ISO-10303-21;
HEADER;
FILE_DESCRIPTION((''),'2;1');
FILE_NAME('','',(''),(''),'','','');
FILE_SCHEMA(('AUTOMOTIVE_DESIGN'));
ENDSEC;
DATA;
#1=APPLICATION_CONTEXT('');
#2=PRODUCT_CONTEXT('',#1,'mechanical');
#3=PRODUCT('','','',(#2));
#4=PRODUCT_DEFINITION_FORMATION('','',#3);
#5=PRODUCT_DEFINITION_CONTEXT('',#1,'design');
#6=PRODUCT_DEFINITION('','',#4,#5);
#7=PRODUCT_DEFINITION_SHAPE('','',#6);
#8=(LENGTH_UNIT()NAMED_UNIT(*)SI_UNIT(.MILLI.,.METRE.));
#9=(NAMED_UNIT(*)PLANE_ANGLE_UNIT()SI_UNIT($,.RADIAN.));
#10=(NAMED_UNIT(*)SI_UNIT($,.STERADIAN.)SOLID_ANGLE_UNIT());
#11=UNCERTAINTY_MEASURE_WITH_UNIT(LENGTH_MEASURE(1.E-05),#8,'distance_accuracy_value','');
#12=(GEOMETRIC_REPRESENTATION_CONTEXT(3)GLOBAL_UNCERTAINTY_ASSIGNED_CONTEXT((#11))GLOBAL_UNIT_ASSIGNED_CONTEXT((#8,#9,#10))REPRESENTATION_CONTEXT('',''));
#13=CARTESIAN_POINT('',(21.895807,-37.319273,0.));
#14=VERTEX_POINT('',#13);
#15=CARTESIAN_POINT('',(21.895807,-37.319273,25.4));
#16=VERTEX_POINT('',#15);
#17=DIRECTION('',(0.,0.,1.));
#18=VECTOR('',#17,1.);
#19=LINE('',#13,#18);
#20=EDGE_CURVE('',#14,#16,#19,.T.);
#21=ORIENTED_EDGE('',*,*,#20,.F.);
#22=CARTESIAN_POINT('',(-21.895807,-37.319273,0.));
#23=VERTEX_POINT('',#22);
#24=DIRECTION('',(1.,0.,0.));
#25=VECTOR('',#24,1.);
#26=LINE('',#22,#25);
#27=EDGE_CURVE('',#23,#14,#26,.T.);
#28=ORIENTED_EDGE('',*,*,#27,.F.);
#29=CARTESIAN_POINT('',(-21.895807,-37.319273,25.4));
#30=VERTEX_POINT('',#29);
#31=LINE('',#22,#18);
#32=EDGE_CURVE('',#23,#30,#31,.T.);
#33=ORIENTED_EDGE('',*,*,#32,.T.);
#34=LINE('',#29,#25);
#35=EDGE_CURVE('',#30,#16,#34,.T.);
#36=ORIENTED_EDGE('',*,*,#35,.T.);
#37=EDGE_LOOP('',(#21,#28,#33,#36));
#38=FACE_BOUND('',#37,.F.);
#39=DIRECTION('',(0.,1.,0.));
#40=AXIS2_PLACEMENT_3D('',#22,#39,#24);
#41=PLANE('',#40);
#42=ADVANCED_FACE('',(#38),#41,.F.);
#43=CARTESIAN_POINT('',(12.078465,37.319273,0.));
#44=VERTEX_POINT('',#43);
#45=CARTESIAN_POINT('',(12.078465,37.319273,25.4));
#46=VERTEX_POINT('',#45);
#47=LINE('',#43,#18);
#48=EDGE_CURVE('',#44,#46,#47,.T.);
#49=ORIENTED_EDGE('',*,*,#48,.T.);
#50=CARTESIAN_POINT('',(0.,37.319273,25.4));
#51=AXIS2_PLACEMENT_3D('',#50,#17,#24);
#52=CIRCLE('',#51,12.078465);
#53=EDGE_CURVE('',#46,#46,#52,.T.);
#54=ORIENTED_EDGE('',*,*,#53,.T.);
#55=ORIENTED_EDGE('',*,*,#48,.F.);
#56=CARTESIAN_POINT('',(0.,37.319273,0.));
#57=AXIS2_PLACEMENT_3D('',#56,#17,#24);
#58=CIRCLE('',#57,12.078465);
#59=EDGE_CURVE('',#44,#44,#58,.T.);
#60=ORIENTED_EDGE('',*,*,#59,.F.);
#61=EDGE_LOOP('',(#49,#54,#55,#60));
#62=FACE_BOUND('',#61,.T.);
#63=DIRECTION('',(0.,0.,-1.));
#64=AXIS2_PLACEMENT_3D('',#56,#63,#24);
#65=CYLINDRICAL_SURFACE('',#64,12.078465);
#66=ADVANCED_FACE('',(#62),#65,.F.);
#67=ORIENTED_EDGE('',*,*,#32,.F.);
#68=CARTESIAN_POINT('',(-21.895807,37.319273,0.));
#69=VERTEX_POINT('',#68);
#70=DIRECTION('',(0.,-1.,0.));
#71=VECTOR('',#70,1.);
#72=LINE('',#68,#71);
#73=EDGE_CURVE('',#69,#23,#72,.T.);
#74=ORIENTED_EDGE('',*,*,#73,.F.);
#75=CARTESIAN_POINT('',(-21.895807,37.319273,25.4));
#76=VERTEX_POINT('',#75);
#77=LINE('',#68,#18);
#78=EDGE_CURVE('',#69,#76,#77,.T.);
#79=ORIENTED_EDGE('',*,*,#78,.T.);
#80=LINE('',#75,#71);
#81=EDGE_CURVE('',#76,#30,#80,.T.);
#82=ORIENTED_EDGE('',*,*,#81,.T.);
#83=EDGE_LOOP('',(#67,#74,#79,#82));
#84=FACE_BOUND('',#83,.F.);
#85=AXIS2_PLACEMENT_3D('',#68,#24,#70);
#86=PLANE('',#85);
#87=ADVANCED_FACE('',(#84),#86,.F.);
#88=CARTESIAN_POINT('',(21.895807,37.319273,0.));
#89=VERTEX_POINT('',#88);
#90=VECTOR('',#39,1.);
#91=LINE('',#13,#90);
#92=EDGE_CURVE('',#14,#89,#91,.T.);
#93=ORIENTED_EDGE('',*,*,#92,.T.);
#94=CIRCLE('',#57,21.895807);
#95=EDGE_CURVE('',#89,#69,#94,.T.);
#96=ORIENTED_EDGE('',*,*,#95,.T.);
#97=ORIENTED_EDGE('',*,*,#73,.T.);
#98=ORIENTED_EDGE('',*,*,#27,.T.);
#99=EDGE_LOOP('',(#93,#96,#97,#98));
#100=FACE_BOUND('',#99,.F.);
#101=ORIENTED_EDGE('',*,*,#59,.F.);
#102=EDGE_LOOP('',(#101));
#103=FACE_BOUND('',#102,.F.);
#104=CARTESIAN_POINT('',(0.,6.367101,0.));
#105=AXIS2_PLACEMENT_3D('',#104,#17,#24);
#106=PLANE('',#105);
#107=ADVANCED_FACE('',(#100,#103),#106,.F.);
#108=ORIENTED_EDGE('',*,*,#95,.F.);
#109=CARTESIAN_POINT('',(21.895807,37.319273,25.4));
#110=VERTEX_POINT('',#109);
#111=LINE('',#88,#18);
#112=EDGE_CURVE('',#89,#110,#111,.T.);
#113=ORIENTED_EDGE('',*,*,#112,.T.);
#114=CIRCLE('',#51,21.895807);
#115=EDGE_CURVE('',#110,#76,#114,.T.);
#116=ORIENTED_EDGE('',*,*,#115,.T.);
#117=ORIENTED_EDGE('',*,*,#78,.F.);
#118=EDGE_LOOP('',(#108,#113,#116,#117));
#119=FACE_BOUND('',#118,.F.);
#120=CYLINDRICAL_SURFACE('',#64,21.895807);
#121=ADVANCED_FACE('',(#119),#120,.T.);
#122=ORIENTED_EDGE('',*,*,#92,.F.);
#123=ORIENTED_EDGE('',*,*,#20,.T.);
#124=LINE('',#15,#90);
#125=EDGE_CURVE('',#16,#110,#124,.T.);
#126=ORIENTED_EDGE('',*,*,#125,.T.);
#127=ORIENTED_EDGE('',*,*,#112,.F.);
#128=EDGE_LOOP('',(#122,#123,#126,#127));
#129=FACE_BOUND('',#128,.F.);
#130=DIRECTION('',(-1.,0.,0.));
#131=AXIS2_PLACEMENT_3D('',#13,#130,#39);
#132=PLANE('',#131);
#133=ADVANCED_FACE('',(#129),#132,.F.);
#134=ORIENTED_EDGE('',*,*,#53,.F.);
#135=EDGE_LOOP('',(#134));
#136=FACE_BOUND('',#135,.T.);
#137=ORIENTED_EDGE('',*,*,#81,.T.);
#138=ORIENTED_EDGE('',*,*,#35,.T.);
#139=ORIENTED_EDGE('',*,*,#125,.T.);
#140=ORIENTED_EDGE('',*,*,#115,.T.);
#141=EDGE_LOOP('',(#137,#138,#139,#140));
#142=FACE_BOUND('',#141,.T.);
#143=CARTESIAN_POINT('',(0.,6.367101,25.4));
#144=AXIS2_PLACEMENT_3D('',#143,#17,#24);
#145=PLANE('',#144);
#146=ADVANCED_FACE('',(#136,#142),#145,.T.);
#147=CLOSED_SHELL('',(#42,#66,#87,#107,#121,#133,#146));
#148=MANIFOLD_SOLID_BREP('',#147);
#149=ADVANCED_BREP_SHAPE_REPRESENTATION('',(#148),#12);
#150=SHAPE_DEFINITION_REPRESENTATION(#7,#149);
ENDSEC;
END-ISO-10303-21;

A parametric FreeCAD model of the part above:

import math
import FreeCAD as App
import Part
import Sketcher

V = App.Vector
Q = App.Units.Quantity

doc = App.newDocument("Part")
body = doc.addObject("PartDesign::Body", "Body")

# Sketch on XY plane
sketch1 = doc.addObject("Sketcher::SketchObject", "Sketch")
body.addObject(sketch1)
sketch1.AttachmentSupport = (doc.XY_Plane, [""])
sketch1.MapMode = "FlatFace"
sketch1.addGeometry(Part.LineSegment(V(-21.895807, -37.319273, 0), V(21.895807, -37.319273, 0)), False)
sketch1.addGeometry(Part.LineSegment(V(21.895807, -37.319273, 0), V(21.895807, 37.319273, 0)), False)
sketch1.addGeometry(Part.ArcOfCircle(Part.Circle(V(0, 37.319273, 0), V(0, 0, 1), 21.895807), math.radians(0), math.radians(180)), False)
sketch1.addGeometry(Part.LineSegment(V(-21.895807, 37.319273, 0), V(-21.895807, -37.319273, 0)), False)
sketch1.addGeometry(Part.Circle(V(0, 37.319273, 0), V(0, 0, 1), 12.078465), False)
sketch1.addConstraint(Sketcher.Constraint("Coincident", 0, 2, 1, 1))
sketch1.addConstraint(Sketcher.Constraint("Tangent", 1, 2, 2, 1))
sketch1.addConstraint(Sketcher.Constraint("Tangent", 2, 2, 3, 1))
sketch1.addConstraint(Sketcher.Constraint("Coincident", 3, 2, 0, 1))
sketch1.addConstraint(Sketcher.Constraint("Horizontal", 0))
sketch1.addConstraint(Sketcher.Constraint("Vertical", 1))
sketch1.addConstraint(Sketcher.Constraint("Vertical", 3))
sketch1.addConstraint(Sketcher.Constraint("Coincident", 4, 3, 2, 3))
sketch1.addConstraint(Sketcher.Constraint("Symmetric", 0, 2, 2, 2, -1, 1))
sketch1.addConstraint(Sketcher.Constraint("Diameter", 4, 24.15693))
sketch1.addConstraint(Sketcher.Constraint("Radius", 2, 21.895807))
sketch1.addConstraint(Sketcher.Constraint("DistanceY", 1, 1, 1, 2, 74.638546))
pad1 = doc.addObject("PartDesign::Pad", "Pad")
body.addObject(pad1)
pad1.Profile = sketch1
pad1.Length = Q("1 in")

doc.recompute()
